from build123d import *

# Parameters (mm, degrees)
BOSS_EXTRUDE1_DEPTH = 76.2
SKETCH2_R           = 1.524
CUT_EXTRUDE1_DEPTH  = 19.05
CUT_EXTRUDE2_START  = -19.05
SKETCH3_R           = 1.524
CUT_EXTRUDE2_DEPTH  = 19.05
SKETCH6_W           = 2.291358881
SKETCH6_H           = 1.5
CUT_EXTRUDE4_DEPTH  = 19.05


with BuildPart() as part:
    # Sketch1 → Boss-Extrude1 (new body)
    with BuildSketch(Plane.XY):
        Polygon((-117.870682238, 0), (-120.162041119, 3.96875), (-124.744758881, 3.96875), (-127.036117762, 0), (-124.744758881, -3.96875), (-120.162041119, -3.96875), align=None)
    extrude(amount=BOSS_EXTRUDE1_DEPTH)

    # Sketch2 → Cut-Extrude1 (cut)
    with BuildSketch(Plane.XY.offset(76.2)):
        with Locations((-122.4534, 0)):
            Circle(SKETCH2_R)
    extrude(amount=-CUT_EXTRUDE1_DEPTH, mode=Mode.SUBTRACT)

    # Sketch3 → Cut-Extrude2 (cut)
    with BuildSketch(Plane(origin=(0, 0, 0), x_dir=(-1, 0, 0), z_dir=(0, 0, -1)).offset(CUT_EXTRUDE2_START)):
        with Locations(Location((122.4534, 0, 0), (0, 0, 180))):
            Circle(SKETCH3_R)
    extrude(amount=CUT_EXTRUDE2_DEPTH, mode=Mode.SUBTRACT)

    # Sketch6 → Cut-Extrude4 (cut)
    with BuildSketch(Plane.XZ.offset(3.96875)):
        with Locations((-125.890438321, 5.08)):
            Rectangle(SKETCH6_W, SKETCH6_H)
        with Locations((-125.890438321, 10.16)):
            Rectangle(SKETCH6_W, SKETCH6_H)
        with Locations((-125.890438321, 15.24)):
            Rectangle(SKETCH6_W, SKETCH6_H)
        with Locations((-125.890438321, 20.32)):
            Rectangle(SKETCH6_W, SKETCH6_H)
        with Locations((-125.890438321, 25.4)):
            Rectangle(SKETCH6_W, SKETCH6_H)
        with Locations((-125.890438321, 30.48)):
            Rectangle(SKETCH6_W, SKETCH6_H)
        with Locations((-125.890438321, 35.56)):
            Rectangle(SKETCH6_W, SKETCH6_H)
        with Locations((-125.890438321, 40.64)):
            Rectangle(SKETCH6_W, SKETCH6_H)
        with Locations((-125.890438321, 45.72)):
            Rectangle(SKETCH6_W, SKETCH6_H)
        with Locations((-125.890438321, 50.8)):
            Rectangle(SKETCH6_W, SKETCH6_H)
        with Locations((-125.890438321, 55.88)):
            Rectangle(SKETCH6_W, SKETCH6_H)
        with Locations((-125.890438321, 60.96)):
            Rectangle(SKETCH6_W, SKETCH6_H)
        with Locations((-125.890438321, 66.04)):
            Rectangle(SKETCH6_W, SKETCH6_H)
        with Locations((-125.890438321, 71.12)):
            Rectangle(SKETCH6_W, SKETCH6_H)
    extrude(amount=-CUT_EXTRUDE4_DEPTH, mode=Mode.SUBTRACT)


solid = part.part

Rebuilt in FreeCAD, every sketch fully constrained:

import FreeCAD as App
import Part
import Sketcher

V = App.Vector
Q = App.Units.Quantity


def add_polygon(sketch, points):
    """Adds a closed chain of lines whose ends are joined by coincident constraints."""
    first, n = sketch.GeometryCount, len(points)
    for a, b in zip(points, points[1:] + points[:1]):
        sketch.addGeometry(Part.LineSegment(App.Vector(*a, 0), App.Vector(*b, 0)), False)
    for i in range(n):
        sketch.addConstraint(Sketcher.Constraint("Coincident", first + i, 2, first + (i + 1) % n, 1))

doc = App.newDocument("Part")
body = doc.addObject("PartDesign::Body", "Body")

# Sketch on XY plane
sketch1 = body.newObject("Sketcher::SketchObject", "Sketch")
sketch1.AttachmentSupport = (doc.getObject("XY_Plane"), [""])
sketch1.MapMode = "FlatFace"
add_polygon(sketch1, [(-117.9, 0), (-120.2, 4), (-124.7, 4), (-127, 0), (-124.7, -4), (-120.2, -4)])  # lines 0-5
sketch1.addConstraint([
    Sketcher.Constraint("Horizontal", 1),
    Sketcher.Constraint("Horizontal", 4),
    Sketcher.Constraint("Symmetric", 1, 2, 3, 2, -1),
    Sketcher.Constraint("PointOnObject", 2, 2, -1),
    Sketcher.Constraint("PointOnObject", 5, 2, -1),
    Sketcher.Constraint("Parallel", 0, 3),
    Sketcher.Constraint("Parallel", 2, 5),
    Sketcher.Constraint("Angle", 0, Q("120 deg")),
    Sketcher.Constraint("DistanceY", -1, 1, 0, 2, Q("0.15625 in")),
    Sketcher.Constraint("DistanceX", 1, 2, 1, 1, Q("4.582718 mm")),
    Sketcher.Constraint("DistanceX", 0, 2, -1, 1, Q("120.162041 mm")),
])
pad1 = body.newObject("PartDesign::Pad", "Pad")
pad1.Profile = sketch1
pad1.Length = Q("3 in")

# Sketch on XY plane
sketch2 = body.newObject("Sketcher::SketchObject", "Sketch001")
sketch2.AttachmentSupport = (doc.getObject("XY_Plane"), [""])
sketch2.MapMode = "FlatFace"
sketch2.AttachmentOffset = App.Placement(V(0, 0, 3 * 25.4), App.Rotation())
sketch2.addGeometry(Part.Circle(V(-122.5, 0, 0), V(0, 0, 1), 1.5), False)
sketch2.addConstraint([
    Sketcher.Constraint("PointOnObject", 0, 3, -1),
    Sketcher.Constraint("Diameter", 0, Q("0.12 in")),
    Sketcher.Constraint("DistanceX", 0, 3, -1, 1, Q("4.821 in")),
])
pocket1 = body.newObject("PartDesign::Pocket", "Pocket")
pocket1.Profile = sketch2
pocket1.Length = Q("0.75 in")

# Sketch on XY plane
sketch3 = body.newObject("Sketcher::SketchObject", "Sketch002")
sketch3.AttachmentSupport = (doc.getObject("XY_Plane"), [""])
sketch3.MapMode = "FlatFace"
sketch3.AttachmentOffset = App.Placement(V(0, 0, 0.75 * 25.4), App.Rotation())
sketch3.addGeometry(Part.Circle(V(-122.5, 0, 0), V(0, 0, 1), 1.5), False)
sketch3.addConstraint([
    Sketcher.Constraint("PointOnObject", 0, 3, -1),
    Sketcher.Constraint("Diameter", 0, Q("0.12 in")),
    Sketcher.Constraint("DistanceX", 0, 3, -1, 1, Q("4.821 in")),
])
pocket2 = body.newObject("PartDesign::Pocket", "Pocket001")
pocket2.Profile = sketch3
pocket2.Length = Q("0.75 in")

# Sketch on XZ plane
sketch4 = body.newObject("Sketcher::SketchObject", "Sketch003")
sketch4.AttachmentSupport = (doc.getObject("XZ_Plane"), [""])
sketch4.MapMode = "FlatFace"
sketch4.AttachmentOffset = App.Placement(V(0, 0, 0.15625 * 25.4), App.Rotation())
add_polygon(sketch4, [(-127, 5.8), (-127, 4.3), (-124.7, 4.3), (-124.7, 5.8)])  # lines 0-3
add_polygon(sketch4, [(-127, 10.9), (-127, 9.4), (-124.7, 9.4), (-124.7, 10.9)])  # lines 4-7
add_polygon(sketch4, [(-127, 16), (-127, 14.5), (-124.7, 14.5), (-124.7, 16)])  # lines 8-11
add_polygon(sketch4, [(-127, 21.1), (-127, 19.6), (-124.7, 19.6), (-124.7, 21.1)])  # lines 12-15
add_polygon(sketch4, [(-127, 26.1), (-127, 24.6), (-124.7, 24.6), (-124.7, 26.1)])  # lines 16-19
add_polygon(sketch4, [(-127, 31.2), (-127, 29.7), (-124.7, 29.7), (-124.7, 31.2)])  # lines 20-23
add_polygon(sketch4, [(-127, 36.3), (-127, 34.8), (-124.7, 34.8), (-124.7, 36.3)])  # lines 24-27
add_polygon(sketch4, [(-127, 41.4), (-127, 39.9), (-124.7, 39.9), (-124.7, 41.4)])  # lines 28-31
add_polygon(sketch4, [(-127, 46.5), (-127, 45), (-124.7, 45), (-124.7, 46.5)])  # lines 32-35
add_polygon(sketch4, [(-127, 51.5), (-127, 50), (-124.7, 50), (-124.7, 51.5)])  # lines 36-39
add_polygon(sketch4, [(-127, 56.6), (-127, 55.1), (-124.7, 55.1), (-124.7, 56.6)])  # lines 40-43
add_polygon(sketch4, [(-127, 61.7), (-127, 60.2), (-124.7, 60.2), (-124.7, 61.7)])  # lines 44-47
add_polygon(sketch4, [(-127, 66.8), (-127, 65.3), (-124.7, 65.3), (-124.7, 66.8)])  # lines 48-51
add_polygon(sketch4, [(-127, 71.9), (-127, 70.4), (-124.7, 70.4), (-124.7, 71.9)])  # lines 52-55
sketch4.addConstraint([
    Sketcher.Constraint("Vertical", 0),
    Sketcher.Constraint("Horizontal", 1),
    Sketcher.Constraint("Vertical", 2),
    Sketcher.Constraint("Horizontal", 3),
    Sketcher.Constraint("Vertical", 4),
    Sketcher.Constraint("Horizontal", 5),
    Sketcher.Constraint("Vertical", 6),
    Sketcher.Constraint("Horizontal", 7),
    Sketcher.Constraint("Vertical", 8),
    Sketcher.Constraint("Horizontal", 9),
    Sketcher.Constraint("Vertical", 10),
    Sketcher.Constraint("Horizontal", 11),
    Sketcher.Constraint("Vertical", 12),
    Sketcher.Constraint("Horizontal", 13),
    Sketcher.Constraint("Vertical", 14),
    Sketcher.Constraint("Horizontal", 15),
    Sketcher.Constraint("Vertical", 16),
    Sketcher.Constraint("Horizontal", 17),
    Sketcher.Constraint("Vertical", 18),
    Sketcher.Constraint("Horizontal", 19),
    Sketcher.Constraint("Vertical", 20),
    Sketcher.Constraint("Horizontal", 21),
    Sketcher.Constraint("Vertical", 22),
    Sketcher.Constraint("Horizontal", 23),
    Sketcher.Constraint("Vertical", 24),
    Sketcher.Constraint("Horizontal", 25),
    Sketcher.Constraint("Vertical", 26),
    Sketcher.Constraint("Horizontal", 27),
    Sketcher.Constraint("Vertical", 28),
    Sketcher.Constraint("Horizontal", 29),
    Sketcher.Constraint("Vertical", 30),
    Sketcher.Constraint("Horizontal", 31),
    Sketcher.Constraint("Vertical", 32),
    Sketcher.Constraint("Horizontal", 33),
    Sketcher.Constraint("Vertical", 34),
    Sketcher.Constraint("Horizontal", 35),
    Sketcher.Constraint("Vertical", 36),
    Sketcher.Constraint("Horizontal", 37),
    Sketcher.Constraint("Vertical", 38),
    Sketcher.Constraint("Horizontal", 39),
    Sketcher.Constraint("Vertical", 40),
    Sketcher.Constraint("Horizontal", 41),
    Sketcher.Constraint("Vertical", 42),
    Sketcher.Constraint("Horizontal", 43),
    Sketcher.Constraint("Vertical", 44),
    Sketcher.Constraint("Horizontal", 45),
    Sketcher.Constraint("Vertical", 46),
    Sketcher.Constraint("Horizontal", 47),
    Sketcher.Constraint("Vertical", 48),
    Sketcher.Constraint("Horizontal", 49),
    Sketcher.Constraint("Vertical", 50),
    Sketcher.Constraint("Horizontal", 51),
    Sketcher.Constraint("Vertical", 52),
    Sketcher.Constraint("Horizontal", 53),
    Sketcher.Constraint("Vertical", 54),
    Sketcher.Constraint("Horizontal", 55),
    Sketcher.Constraint("Vertical", 3, 2, 4, 2),
    Sketcher.Constraint("Vertical", 2, 2, 5, 2),
    Sketcher.Constraint("Vertical", 7, 2, 8, 2),
    Sketcher.Constraint("Vertical", 6, 2, 9, 2),
    Sketcher.Constraint("Vertical", 11, 2, 12, 2),
    Sketcher.Constraint("Vertical", 10, 2, 13, 2),
    Sketcher.Constraint("Vertical", 15, 2, 16, 2),
    Sketcher.Constraint("Vertical", 14, 2, 17, 2),
    Sketcher.Constraint("Vertical", 19, 2, 20, 2),
    Sketcher.Constraint("Vertical", 18, 2, 21, 2),
    Sketcher.Constraint("Vertical", 23, 2, 24, 2),
    Sketcher.Constraint("Vertical", 22, 2, 25, 2),
    Sketcher.Constraint("Vertical", 27, 2, 28, 2),
    Sketcher.Constraint("Vertical", 26, 2, 29, 2),
    Sketcher.Constraint("Vertical", 31, 2, 32, 2),
    Sketcher.Constraint("Vertical", 30, 2, 33, 2),
    Sketcher.Constraint("Vertical", 35, 2, 36, 2),
    Sketcher.Constraint("Vertical", 34, 2, 37, 2),
    Sketcher.Constraint("Vertical", 39, 2, 40, 2),
    Sketcher.Constraint("Vertical", 38, 2, 41, 2),
    Sketcher.Constraint("Vertical", 43, 2, 44, 2),
    Sketcher.Constraint("Vertical", 42, 2, 45, 2),
    Sketcher.Constraint("Vertical", 47, 2, 48, 2),
    Sketcher.Constraint("Vertical", 46, 2, 49, 2),
    Sketcher.Constraint("Vertical", 51, 2, 52, 2),
    Sketcher.Constraint("Vertical", 50, 2, 53, 2),
    Sketcher.Constraint("Equal", 2, 4),
    Sketcher.Constraint("Equal", 6, 8),
    Sketcher.Constraint("Equal", 10, 12),
    Sketcher.Constraint("Equal", 14, 16),
    Sketcher.Constraint("Equal", 18, 20),
    Sketcher.Constraint("Equal", 22, 24),
    Sketcher.Constraint("Equal", 26, 28),
    Sketcher.Constraint("Equal", 30, 32),
    Sketcher.Constraint("Equal", 34, 36),
    Sketcher.Constraint("Equal", 38, 40),
    Sketcher.Constraint("Equal", 42, 44),
    Sketcher.Constraint("Equal", 46, 48),
    Sketcher.Constraint("Equal", 50, 52),
    Sketcher.Constraint("DistanceY", 0, 2, 4, 2, Q("0.2 in")),
    Sketcher.Constraint("DistanceY", 4, 2, 8, 2, Q("0.2 in")),
    Sketcher.Constraint("DistanceY", 8, 2, 12, 2, Q("0.2 in")),
    Sketcher.Constraint("DistanceY", 12, 2, 16, 2, Q("0.2 in")),
    Sketcher.Constraint("DistanceY", 16, 2, 20, 2, Q("0.2 in")),
    Sketcher.Constraint("DistanceY", 20, 2, 24, 2, Q("0.2 in")),
    Sketcher.Constraint("DistanceY", 24, 2, 28, 2, Q("0.2 in")),
    Sketcher.Constraint("DistanceY", 28, 2, 32, 2, Q("0.2 in")),
    Sketcher.Constraint("DistanceY", 32, 2, 36, 2, Q("0.2 in")),
    Sketcher.Constraint("DistanceY", 36, 2, 40, 2, Q("0.2 in")),
    Sketcher.Constraint("DistanceY", 40, 2, 44, 2, Q("0.2 in")),
    Sketcher.Constraint("DistanceY", 44, 2, 48, 2, Q("0.2 in")),
    Sketcher.Constraint("DistanceY", 48, 2, 52, 2, Q("0.2 in")),
    Sketcher.Constraint("DistanceY", 0, 2, 0, 1, Q("1.5 mm")),
    Sketcher.Constraint("DistanceX", 1, 1, 1, 2, Q("2.291359 mm")),
    Sketcher.Constraint("DistanceY", -1, 1, 0, 2, Q("4.33 mm")),
    Sketcher.Constraint("DistanceX", 1, 2, -1, 1, Q("124.744759 mm")),
])
pocket3 = body.newObject("PartDesign::Pocket", "Pocket002")
pocket3.Profile = sketch4
pocket3.Length = Q("0.75 in")

doc.recompute()
